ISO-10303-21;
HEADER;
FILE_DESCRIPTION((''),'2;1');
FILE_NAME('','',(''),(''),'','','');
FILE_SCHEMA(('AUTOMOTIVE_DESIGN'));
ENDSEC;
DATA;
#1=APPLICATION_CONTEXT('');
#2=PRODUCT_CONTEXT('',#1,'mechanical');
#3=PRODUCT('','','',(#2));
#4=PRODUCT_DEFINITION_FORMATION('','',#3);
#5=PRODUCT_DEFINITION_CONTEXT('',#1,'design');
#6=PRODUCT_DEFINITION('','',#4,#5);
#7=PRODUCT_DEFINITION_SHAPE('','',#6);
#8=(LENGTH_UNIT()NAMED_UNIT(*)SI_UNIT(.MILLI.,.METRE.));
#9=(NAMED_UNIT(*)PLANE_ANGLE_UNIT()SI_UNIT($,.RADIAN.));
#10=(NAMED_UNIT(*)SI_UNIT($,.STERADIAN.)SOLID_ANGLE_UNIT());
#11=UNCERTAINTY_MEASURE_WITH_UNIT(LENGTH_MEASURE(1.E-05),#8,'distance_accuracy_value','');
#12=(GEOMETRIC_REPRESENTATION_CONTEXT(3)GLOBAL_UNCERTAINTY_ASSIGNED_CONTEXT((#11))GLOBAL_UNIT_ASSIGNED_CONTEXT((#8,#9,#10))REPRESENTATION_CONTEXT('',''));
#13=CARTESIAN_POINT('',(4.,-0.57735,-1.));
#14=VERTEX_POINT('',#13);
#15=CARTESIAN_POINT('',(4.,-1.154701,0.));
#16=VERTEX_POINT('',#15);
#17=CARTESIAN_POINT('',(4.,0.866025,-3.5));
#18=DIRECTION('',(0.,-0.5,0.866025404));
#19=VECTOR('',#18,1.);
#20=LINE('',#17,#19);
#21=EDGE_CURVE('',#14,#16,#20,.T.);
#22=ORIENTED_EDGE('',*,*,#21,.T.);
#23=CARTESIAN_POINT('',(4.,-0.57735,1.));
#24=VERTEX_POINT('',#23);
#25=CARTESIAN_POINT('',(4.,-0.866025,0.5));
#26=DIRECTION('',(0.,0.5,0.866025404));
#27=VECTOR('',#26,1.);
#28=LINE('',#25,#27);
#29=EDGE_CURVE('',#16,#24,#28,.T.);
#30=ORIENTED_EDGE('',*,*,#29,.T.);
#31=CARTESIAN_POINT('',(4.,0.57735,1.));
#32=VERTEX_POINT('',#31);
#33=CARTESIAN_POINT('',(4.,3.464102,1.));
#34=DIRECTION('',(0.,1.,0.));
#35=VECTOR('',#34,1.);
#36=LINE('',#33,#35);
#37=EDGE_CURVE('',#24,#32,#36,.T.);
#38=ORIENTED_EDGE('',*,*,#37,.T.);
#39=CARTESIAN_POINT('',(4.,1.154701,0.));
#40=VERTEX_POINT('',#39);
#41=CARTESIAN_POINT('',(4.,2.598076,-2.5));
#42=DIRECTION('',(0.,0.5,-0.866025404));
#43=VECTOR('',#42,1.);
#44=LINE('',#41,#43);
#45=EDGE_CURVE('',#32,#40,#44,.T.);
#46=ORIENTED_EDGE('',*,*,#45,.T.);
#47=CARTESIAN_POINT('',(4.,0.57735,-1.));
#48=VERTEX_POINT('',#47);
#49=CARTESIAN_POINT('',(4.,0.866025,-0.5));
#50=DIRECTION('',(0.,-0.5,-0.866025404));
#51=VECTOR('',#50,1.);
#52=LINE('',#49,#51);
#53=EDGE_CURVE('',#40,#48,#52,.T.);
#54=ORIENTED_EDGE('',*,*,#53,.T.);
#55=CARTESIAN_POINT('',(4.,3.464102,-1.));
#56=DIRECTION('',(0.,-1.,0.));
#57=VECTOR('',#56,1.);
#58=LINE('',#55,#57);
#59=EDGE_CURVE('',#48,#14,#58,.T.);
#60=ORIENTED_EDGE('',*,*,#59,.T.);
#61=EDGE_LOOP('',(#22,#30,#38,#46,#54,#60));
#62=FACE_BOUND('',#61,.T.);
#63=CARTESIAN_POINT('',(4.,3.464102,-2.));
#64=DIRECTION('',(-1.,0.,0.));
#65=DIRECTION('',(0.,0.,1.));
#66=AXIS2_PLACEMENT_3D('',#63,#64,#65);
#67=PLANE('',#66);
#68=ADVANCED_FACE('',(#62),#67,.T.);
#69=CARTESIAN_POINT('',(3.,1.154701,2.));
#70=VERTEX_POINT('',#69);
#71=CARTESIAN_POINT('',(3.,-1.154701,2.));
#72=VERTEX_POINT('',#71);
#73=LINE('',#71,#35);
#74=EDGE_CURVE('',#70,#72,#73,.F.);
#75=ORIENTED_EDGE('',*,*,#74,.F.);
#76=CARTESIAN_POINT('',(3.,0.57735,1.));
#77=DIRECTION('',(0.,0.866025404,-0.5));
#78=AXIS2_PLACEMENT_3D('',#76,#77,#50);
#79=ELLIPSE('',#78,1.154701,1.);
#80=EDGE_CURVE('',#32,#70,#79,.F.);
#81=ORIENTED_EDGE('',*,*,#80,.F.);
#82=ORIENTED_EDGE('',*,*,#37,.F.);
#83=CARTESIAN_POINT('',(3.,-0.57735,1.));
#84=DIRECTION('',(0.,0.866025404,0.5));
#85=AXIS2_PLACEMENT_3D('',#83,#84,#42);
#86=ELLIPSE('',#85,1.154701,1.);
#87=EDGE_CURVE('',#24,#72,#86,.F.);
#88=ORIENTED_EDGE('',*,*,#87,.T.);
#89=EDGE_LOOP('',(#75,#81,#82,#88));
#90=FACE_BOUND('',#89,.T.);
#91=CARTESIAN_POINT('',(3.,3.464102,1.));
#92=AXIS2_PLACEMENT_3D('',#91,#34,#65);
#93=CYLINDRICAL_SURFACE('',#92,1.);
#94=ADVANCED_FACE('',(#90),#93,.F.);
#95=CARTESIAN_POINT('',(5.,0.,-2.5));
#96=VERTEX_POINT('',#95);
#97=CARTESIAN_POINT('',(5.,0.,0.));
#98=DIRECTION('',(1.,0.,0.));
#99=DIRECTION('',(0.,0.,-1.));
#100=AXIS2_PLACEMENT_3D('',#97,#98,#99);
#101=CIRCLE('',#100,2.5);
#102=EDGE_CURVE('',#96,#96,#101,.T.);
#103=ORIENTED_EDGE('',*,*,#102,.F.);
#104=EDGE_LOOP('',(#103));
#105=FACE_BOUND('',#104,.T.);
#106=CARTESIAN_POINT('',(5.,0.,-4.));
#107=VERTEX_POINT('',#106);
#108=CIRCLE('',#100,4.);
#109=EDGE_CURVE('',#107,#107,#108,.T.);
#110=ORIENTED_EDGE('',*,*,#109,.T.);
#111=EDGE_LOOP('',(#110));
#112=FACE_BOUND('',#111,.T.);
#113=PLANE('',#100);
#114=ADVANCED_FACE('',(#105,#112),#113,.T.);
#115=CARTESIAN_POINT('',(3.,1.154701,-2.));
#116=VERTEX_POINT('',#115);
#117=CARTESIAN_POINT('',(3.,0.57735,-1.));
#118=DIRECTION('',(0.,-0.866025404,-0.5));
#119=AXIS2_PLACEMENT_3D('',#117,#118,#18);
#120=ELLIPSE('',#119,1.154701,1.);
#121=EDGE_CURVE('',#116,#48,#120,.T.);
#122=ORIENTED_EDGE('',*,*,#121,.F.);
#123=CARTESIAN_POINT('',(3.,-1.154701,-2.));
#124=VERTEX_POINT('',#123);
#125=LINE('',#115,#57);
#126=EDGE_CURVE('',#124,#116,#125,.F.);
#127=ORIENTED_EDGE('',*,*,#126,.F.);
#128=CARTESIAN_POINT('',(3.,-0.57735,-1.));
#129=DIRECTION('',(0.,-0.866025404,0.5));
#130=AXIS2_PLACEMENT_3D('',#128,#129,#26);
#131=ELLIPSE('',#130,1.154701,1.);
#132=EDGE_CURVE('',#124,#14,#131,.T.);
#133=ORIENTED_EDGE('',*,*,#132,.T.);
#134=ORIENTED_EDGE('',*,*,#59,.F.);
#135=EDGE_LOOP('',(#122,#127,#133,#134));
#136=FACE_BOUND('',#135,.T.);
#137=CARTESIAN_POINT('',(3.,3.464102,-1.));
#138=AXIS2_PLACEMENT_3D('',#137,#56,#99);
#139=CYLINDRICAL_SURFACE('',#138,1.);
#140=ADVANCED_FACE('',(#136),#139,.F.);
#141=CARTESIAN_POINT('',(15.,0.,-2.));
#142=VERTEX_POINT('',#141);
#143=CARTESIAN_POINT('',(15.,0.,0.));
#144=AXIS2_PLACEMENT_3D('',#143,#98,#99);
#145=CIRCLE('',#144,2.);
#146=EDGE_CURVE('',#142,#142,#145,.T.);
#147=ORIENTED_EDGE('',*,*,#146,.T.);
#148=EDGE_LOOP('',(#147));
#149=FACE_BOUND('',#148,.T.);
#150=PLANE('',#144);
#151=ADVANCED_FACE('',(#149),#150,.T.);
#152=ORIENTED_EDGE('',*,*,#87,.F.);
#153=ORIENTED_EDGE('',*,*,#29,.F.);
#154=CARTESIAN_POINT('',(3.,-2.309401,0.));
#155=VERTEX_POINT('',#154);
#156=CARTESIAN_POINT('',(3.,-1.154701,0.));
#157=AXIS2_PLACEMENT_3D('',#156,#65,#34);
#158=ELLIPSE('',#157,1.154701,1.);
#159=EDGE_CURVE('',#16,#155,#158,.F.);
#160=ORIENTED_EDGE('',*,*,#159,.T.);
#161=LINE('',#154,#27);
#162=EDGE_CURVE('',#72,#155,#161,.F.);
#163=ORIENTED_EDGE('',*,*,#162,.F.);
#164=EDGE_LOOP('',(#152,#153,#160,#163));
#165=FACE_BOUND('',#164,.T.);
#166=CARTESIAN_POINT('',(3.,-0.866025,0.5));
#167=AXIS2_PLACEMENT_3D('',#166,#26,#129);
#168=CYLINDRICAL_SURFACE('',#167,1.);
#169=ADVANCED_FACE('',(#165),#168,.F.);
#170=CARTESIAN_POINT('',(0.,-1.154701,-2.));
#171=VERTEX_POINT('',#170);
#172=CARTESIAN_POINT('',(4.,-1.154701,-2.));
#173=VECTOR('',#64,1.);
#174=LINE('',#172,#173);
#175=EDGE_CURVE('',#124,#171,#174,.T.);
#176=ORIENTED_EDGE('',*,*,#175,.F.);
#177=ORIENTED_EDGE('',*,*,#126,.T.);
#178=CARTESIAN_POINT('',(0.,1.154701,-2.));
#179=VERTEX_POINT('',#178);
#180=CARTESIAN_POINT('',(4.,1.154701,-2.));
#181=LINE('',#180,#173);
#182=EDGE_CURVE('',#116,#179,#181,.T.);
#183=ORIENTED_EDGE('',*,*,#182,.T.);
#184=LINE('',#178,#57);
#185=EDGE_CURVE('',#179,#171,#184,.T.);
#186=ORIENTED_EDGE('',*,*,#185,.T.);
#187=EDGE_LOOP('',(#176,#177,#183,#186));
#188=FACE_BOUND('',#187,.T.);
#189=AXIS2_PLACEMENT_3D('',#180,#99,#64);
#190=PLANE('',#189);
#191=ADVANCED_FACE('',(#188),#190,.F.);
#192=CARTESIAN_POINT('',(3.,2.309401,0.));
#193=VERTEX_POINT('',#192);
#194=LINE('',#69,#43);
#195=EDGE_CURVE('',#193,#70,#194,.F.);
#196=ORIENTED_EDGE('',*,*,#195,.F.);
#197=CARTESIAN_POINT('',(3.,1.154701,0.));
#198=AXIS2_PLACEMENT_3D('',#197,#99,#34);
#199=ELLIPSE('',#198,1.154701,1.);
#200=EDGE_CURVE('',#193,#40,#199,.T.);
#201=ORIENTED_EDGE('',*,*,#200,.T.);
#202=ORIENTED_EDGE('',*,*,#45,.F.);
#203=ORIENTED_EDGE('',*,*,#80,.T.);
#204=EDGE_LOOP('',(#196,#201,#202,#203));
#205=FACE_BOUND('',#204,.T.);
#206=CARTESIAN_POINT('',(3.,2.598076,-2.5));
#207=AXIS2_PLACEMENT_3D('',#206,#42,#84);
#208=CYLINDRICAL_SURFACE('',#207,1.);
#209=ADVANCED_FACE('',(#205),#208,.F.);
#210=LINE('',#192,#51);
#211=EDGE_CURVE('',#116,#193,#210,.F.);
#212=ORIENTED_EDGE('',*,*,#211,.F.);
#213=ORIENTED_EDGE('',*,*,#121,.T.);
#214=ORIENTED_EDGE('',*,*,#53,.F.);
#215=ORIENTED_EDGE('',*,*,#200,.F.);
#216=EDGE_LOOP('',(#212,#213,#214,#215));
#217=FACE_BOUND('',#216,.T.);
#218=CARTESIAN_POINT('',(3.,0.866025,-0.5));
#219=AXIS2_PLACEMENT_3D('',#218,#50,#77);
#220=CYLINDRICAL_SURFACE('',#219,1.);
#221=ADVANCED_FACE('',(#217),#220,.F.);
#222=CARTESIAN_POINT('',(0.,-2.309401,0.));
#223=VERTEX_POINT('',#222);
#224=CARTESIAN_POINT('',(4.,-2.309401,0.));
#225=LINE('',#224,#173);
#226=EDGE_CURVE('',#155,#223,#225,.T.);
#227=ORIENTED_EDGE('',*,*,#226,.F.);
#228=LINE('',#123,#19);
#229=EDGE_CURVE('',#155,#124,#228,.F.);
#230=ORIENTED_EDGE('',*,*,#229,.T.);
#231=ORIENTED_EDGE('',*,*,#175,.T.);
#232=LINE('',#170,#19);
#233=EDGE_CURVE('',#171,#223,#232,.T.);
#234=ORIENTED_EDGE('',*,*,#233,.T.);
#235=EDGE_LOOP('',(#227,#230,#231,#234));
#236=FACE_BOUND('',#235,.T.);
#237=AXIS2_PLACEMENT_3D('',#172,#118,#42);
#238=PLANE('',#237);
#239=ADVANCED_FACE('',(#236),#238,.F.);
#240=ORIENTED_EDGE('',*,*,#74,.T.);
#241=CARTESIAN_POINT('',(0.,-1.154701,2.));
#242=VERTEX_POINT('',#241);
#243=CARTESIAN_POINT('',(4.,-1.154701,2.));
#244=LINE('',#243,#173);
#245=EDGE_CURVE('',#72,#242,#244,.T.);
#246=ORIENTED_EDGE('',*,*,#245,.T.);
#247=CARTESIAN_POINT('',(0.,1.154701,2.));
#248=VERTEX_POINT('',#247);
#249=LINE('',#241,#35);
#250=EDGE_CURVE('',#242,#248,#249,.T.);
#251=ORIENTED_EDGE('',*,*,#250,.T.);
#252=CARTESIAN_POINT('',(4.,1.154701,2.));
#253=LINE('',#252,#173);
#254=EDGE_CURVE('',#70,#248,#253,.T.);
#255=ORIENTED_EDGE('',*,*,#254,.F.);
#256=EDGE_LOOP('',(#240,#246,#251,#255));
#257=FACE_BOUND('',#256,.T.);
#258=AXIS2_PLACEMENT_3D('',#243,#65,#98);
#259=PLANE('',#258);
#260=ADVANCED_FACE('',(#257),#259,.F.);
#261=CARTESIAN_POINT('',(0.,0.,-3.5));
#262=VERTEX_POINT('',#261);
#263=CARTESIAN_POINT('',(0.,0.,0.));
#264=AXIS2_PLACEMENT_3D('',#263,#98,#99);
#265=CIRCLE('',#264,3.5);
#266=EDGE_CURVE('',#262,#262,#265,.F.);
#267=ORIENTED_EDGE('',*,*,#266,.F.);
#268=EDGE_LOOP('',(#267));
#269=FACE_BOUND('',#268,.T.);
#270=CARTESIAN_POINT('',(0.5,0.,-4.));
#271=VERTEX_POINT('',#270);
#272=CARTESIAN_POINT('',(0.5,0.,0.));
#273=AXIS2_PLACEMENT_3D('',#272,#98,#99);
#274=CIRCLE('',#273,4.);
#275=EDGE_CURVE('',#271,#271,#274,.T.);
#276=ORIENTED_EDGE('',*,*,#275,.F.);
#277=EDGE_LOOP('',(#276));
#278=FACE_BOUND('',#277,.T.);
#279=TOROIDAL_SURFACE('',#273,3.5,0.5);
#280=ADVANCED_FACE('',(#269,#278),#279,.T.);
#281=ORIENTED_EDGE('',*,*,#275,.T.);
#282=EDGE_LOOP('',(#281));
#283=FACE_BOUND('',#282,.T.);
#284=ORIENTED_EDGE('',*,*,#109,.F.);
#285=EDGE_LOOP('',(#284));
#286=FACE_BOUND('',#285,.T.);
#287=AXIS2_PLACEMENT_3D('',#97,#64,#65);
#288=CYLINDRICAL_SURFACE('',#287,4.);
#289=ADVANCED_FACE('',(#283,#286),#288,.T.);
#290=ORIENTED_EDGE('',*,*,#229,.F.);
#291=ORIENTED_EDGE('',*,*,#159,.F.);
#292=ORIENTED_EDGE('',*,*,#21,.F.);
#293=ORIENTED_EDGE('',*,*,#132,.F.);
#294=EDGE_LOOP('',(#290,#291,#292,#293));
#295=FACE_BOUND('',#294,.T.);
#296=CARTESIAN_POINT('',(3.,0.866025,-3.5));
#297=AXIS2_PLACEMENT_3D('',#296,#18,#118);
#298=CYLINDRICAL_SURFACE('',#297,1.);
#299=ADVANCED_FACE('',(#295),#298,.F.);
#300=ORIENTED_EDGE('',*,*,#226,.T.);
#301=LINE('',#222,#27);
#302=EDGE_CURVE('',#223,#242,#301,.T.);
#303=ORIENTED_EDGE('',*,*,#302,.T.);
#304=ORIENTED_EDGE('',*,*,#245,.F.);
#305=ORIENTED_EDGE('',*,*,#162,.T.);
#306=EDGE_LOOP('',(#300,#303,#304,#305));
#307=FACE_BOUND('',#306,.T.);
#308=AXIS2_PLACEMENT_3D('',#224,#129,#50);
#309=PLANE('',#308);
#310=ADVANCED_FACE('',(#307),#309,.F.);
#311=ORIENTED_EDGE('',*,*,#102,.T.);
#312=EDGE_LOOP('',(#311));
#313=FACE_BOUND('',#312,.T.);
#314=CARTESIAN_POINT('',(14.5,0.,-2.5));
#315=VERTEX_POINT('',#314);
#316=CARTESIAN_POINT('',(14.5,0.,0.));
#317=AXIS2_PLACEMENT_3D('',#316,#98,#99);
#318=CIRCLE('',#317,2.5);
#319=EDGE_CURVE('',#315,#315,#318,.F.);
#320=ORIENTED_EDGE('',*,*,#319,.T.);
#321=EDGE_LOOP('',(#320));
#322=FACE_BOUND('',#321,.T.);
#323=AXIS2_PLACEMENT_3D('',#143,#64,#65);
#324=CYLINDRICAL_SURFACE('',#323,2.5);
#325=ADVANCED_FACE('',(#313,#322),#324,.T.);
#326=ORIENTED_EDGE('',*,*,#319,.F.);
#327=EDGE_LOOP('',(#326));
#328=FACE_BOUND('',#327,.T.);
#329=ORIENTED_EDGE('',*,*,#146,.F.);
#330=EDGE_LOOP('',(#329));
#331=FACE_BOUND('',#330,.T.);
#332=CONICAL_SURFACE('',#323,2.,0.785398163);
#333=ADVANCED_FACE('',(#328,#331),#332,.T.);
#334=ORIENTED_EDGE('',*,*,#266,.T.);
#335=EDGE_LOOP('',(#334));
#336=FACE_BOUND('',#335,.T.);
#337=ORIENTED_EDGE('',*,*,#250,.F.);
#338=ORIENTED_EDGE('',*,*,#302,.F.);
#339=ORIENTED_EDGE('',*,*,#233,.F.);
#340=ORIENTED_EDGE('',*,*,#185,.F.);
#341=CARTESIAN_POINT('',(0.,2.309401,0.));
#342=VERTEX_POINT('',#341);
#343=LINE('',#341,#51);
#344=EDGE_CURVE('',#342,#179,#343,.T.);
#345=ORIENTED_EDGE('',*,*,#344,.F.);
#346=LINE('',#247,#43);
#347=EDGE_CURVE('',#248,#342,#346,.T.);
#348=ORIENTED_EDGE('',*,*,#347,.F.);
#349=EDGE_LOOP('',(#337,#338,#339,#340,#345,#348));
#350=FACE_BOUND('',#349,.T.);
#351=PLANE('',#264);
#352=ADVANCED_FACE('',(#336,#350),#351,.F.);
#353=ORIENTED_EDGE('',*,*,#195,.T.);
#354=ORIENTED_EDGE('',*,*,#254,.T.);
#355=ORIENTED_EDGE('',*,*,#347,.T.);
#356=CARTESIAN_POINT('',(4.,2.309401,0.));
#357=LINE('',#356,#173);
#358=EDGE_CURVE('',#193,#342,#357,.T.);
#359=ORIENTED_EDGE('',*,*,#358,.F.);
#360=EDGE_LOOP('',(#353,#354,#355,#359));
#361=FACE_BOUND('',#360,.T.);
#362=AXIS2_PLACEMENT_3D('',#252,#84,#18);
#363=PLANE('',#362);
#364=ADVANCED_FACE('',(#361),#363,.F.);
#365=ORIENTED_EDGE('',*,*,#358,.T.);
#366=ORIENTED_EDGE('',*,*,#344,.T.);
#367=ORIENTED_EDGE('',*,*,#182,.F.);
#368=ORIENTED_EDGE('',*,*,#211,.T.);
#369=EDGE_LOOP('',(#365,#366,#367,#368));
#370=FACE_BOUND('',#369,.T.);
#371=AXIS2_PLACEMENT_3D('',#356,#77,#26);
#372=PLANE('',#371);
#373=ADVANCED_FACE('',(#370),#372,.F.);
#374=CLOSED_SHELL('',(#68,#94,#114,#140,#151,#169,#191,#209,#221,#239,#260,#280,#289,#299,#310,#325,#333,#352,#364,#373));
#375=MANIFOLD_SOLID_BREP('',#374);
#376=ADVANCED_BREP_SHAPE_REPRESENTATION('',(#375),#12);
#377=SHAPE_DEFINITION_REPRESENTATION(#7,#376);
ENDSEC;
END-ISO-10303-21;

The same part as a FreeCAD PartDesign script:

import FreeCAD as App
import Part
import Sketcher

V = App.Vector
Q = App.Units.Quantity


def edges_at(feature, points):
    """Names of the edges that pass closest to the given points."""
    edges = feature.Shape.Edges
    near = lambda p: min(range(len(edges)), key=lambda i: edges[i].distToShape(Part.Vertex(*p))[0])
    return sorted({f"Edge{near(p) + 1}" for p in points})


def add_polygon(sketch, points):
    """Adds a closed chain of lines whose ends are joined by coincident constraints."""
    first, n = sketch.GeometryCount, len(points)
    for a, b in zip(points, points[1:] + points[:1]):
        sketch.addGeometry(Part.LineSegment(App.Vector(*a, 0), App.Vector(*b, 0)), False)
    for i in range(n):
        sketch.addConstraint(Sketcher.Constraint("Coincident", first + i, 2, first + (i + 1) % n, 1))

doc = App.newDocument("Part")
body = doc.addObject("PartDesign::Body", "Body")

# Sketch on YZ plane
sketch1 = body.newObject("Sketcher::SketchObject", "Sketch")
sketch1.AttachmentSupport = (doc.getObject("YZ_Plane"), [""])
sketch1.MapMode = "FlatFace"
sketch1.addGeometry(Part.Circle(V(0, 0, 0), V(0, 0, 1), 4), False)
sketch1.addConstraint(Sketcher.Constraint("Coincident", 0, 3, -1, 1))
sketch1.addConstraint(Sketcher.Constraint("Diameter", 0, 8.0))
pad1 = body.newObject("PartDesign::Pad", "Pad")
pad1.Profile = sketch1
pad1.Length = 5

# Sketch on YZ plane
sketch2 = body.newObject("Sketcher::SketchObject", "Sketch001")
sketch2.AttachmentSupport = (doc.getObject("YZ_Plane"), [""])
sketch2.MapMode = "FlatFace"
sketch2.AttachmentOffset = App.Placement(V(0, 0, 5), App.Rotation())
sketch2.addGeometry(Part.Circle(V(0, 0, 0), V(0, 0, 1), 2.5), False)
sketch2.addConstraint(Sketcher.Constraint("Coincident", 0, 3, -1, 1))
sketch2.addConstraint(Sketcher.Constraint("Diameter", 0, 5.0))
pad2 = body.newObject("PartDesign::Pad", "Pad001")
pad2.Profile = sketch2
pad2.Length = 10
doc.recompute()

chamfer = body.newObject("PartDesign::Chamfer", "Chamfer")
chamfer.Base = (pad2, edges_at(pad2, [(15, 0, 2.5)]))
chamfer.Size = 0.5

# Sketch on YZ plane
sketch3 = body.newObject("Sketcher::SketchObject", "Sketch002")
sketch3.AttachmentSupport = (doc.getObject("YZ_Plane"), [""])
sketch3.MapMode = "FlatFace"
add_polygon(sketch3, [(2.3, 0), (1.2, -2), (-1.2, -2), (-2.3, 0), (-1.2, 2), (1.2, 2)])  # lines 0-5
sketch3.addConstraint(Sketcher.Constraint("Horizontal", 1))
sketch3.addConstraint(Sketcher.Constraint("Horizontal", 4))
sketch3.addConstraint(Sketcher.Constraint("Symmetric", 0, 2, 3, 2, -1, 1))
sketch3.addConstraint(Sketcher.Constraint("Symmetric", 2, 2, 5, 2, -1, 1))
sketch3.addConstraint(Sketcher.Constraint("PointOnObject", 2, 2, -1))
sketch3.addConstraint(Sketcher.Constraint("Parallel", 2, 5))
sketch3.addConstraint(Sketcher.Constraint("Vertical", 1, 2, 3, 2))
sketch3.addConstraint(Sketcher.Constraint("Angle", 0, Q("-120 deg")))
sketch3.addConstraint(Sketcher.Constraint("DistanceY", 0, 2, -1, 1, 2.0))
sketch3.addConstraint(Sketcher.Constraint("DistanceX", 1, 2, 1, 1, 2.309401))
pocket1 = body.newObject("PartDesign::Pocket", "Pocket")
pocket1.Profile = sketch3
pocket1.Length = 4
pocket1.Reversed = True
doc.recompute()

fillet = body.newObject("PartDesign::Fillet", "Fillet")
fillet.Base = (pocket1, edges_at(pocket1, [
    (4, 1.732, 1),
    (4, 0, 2),
    (4, -1.732, 1),
    (4, -1.732, -1),
    (4, 0, -2),
    (4, 1.732, -1),
]))
fillet.Radius = 1
doc.recompute()

fillet2 = body.newObject("PartDesign::Fillet", "Fillet001")
fillet2.Base = (fillet, edges_at(fillet, [(0, 0, 4)]))
fillet2.Radius = 0.5

doc.recompute()
